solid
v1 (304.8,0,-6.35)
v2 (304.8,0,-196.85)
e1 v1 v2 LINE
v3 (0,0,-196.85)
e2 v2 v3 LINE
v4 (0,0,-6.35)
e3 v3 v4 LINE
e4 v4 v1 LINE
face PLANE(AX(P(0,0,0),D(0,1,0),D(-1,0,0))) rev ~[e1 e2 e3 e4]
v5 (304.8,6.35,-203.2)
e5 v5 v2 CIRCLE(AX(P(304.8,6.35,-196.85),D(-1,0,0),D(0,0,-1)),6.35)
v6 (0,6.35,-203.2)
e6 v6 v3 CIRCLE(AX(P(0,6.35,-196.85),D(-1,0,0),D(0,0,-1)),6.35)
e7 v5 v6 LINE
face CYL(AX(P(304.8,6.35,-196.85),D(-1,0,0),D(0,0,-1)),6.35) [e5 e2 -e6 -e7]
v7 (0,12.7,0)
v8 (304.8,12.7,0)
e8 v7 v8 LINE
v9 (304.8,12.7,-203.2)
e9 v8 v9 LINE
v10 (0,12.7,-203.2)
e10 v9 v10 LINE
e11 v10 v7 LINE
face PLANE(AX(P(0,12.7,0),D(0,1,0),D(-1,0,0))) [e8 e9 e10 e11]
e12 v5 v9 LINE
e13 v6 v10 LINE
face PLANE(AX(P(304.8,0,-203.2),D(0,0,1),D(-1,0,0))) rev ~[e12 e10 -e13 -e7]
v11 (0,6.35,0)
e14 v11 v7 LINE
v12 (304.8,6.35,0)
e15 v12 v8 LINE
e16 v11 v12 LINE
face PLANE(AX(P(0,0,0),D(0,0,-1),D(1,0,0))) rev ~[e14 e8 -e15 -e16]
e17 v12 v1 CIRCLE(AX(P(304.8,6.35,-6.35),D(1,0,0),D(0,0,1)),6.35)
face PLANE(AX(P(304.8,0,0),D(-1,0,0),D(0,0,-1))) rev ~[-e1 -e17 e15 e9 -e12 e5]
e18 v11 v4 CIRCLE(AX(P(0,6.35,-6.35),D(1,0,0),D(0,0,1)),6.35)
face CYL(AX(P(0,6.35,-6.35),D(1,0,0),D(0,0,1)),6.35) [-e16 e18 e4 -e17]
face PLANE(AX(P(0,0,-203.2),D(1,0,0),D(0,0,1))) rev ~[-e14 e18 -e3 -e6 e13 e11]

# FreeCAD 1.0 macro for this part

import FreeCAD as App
import Part
import Sketcher
from FreeCAD import Vector
Q = App.Units.Quantity


def edges_at(feature, points):
    """Names of the edges that pass closest to the given points."""
    edges = feature.Shape.Edges
    near = lambda p: min(range(len(edges)), key=lambda i: edges[i].distToShape(Part.Vertex(*p))[0])
    return sorted({f"Edge{near(p) + 1}" for p in points})


def add_polygon(sketch, points):
    """Adds a closed chain of lines whose ends are joined by coincident constraints."""
    first, n = sketch.GeometryCount, len(points)
    for a, b in zip(points, points[1:] + points[:1]):
        sketch.addGeometry(Part.LineSegment(App.Vector(*a, 0), App.Vector(*b, 0)), False)
    for i in range(n):
        sketch.addConstraint(Sketcher.Constraint("Coincident", first + i, 2, first + (i + 1) % n, 1))

doc = App.newDocument("Part")
body = doc.addObject("PartDesign::Body", "Body")

# Sketch on XZ plane
sketch1 = body.newObject("Sketcher::SketchObject", "Sketch")
sketch1.AttachmentSupport = (doc.getObject("XZ_Plane"), [""])
sketch1.MapMode = "FlatFace"
add_polygon(sketch1, [(0, -203.2), (0, 0), (304.8, 0), (304.8, -203.2)])  # lines 0-3
sketch1.addConstraint([
    Sketcher.Constraint("Vertical", 0),
    Sketcher.Constraint("Horizontal", 1),
    Sketcher.Constraint("Vertical", 2),
    Sketcher.Constraint("Horizontal", 3),
    Sketcher.Constraint("Coincident", 0, 2, -1, 1),
    Sketcher.Constraint("DistanceX", 1, 1, 1, 2, Q("12 in")),
    Sketcher.Constraint("DistanceY", 0, 1, 0, 2, Q("8 in")),
])
pad1 = body.newObject("PartDesign::Pad", "Pad")
pad1.Profile = sketch1
pad1.Length = Q("0.5 in")
pad1.Reversed = True
doc.recompute()

fillet = body.newObject("PartDesign::Fillet", "Fillet")
fillet.Base = (pad1, edges_at(pad1, [(152.4, 0, 0), (152.4, 0, -203.2)]))
fillet.Radius = Q("0.25 in")

doc.recompute()
